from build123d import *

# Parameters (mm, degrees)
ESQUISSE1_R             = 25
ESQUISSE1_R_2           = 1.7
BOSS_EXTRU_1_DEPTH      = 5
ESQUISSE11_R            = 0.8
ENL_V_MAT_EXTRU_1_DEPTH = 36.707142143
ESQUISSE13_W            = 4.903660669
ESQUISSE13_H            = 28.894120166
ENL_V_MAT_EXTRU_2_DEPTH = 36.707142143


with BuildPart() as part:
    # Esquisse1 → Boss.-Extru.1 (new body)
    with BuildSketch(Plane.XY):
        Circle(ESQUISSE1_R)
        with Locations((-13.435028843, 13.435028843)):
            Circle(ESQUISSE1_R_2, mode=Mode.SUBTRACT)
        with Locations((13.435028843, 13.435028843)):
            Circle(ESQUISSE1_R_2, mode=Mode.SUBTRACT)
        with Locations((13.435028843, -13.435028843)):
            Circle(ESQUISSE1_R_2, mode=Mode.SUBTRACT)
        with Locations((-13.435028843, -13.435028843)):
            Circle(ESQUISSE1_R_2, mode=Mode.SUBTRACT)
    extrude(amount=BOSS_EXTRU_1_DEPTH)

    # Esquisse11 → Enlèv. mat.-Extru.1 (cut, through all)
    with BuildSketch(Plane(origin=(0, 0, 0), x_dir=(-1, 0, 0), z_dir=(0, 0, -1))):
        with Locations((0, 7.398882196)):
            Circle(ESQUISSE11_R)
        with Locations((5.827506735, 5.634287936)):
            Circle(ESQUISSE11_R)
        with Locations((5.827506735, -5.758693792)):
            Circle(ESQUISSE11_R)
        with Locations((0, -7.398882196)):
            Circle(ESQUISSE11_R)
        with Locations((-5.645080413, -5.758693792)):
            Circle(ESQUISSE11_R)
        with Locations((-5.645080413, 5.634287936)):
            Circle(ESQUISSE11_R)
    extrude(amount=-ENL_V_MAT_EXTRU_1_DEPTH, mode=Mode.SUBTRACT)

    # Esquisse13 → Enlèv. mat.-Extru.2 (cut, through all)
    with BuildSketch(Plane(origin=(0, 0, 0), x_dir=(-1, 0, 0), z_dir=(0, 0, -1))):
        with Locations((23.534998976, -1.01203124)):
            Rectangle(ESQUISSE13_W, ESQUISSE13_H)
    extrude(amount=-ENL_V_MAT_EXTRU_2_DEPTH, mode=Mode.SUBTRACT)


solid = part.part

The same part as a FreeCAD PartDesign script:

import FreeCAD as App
import Part
import Sketcher

V = App.Vector


def add_polygon(sketch, points):
    """Adds a closed chain of lines whose ends are joined by coincident constraints."""
    first, n = sketch.GeometryCount, len(points)
    for a, b in zip(points, points[1:] + points[:1]):
        sketch.addGeometry(Part.LineSegment(App.Vector(*a, 0), App.Vector(*b, 0)), False)
    for i in range(n):
        sketch.addConstraint(Sketcher.Constraint("Coincident", first + i, 2, first + (i + 1) % n, 1))

doc = App.newDocument("Part")
body = doc.addObject("PartDesign::Body", "Body")

# Sketch on XY plane
sketch1 = doc.addObject("Sketcher::SketchObject", "Sketch")
body.addObject(sketch1)
sketch1.AttachmentSupport = (doc.XY_Plane, [""])
sketch1.MapMode = "FlatFace"
sketch1.addGeometry(Part.Circle(V(0, 0, 0), V(0, 0, 1), 25), False)
sketch1.addGeometry(Part.Circle(V(-13.4, -13.4, 0), V(0, 0, 1), 1.7), False)
sketch1.addGeometry(Part.Circle(V(13.4, -13.4, 0), V(0, 0, 1), 1.7), False)
sketch1.addGeometry(Part.Circle(V(-13.4, 13.4, 0), V(0, 0, 1), 1.7), False)
sketch1.addGeometry(Part.Circle(V(13.4, 13.4, 0), V(0, 0, 1), 1.7), False)
sketch1.addConstraint(Sketcher.Constraint("Coincident", 0, 3, -1, 1))
sketch1.addConstraint(Sketcher.Constraint("Equal", 1, 2))
sketch1.addConstraint(Sketcher.Constraint("Equal", 2, 3))
sketch1.addConstraint(Sketcher.Constraint("Equal", 3, 4))
sketch1.addConstraint(Sketcher.Constraint("Symmetric", 2, 3, 3, 3, -1, 1))
sketch1.addConstraint(Sketcher.Constraint("Symmetric", 1, 3, 4, 3, -1, 1))
sketch1.addConstraint(Sketcher.Constraint("Symmetric", 1, 3, 2, 3, -2))
sketch1.addConstraint(Sketcher.Constraint("Diameter", 0, 50.0))
sketch1.addConstraint(Sketcher.Constraint("Diameter", 1, 3.4))
sketch1.addConstraint(Sketcher.Constraint("DistanceX", 1, 3, -1, 1, 13.435029))
sketch1.addConstraint(Sketcher.Constraint("DistanceY", 1, 3, -1, 1, 13.435029))
pad1 = doc.addObject("PartDesign::Pad", "Pad")
body.addObject(pad1)
pad1.Profile = sketch1
pad1.Length = 5

# Sketch on XY plane
sketch2 = doc.addObject("Sketcher::SketchObject", "Sketch001")
body.addObject(sketch2)
sketch2.AttachmentSupport = (doc.XY_Plane, [""])
sketch2.MapMode = "FlatFace"
sketch2.addGeometry(Part.Circle(V(0, 7.4, 0), V(0, 0, 1), 0.8), False)
sketch2.addGeometry(Part.Circle(V(-5.8, 5.6, 0), V(0, 0, 1), 0.8), False)
sketch2.addGeometry(Part.Circle(V(-5.8, -5.8, 0), V(0, 0, 1), 0.8), False)
sketch2.addGeometry(Part.Circle(V(0, -7.4, 0), V(0, 0, 1), 0.8), False)
sketch2.addGeometry(Part.Circle(V(5.6, -5.8, 0), V(0, 0, 1), 0.8), False)
sketch2.addGeometry(Part.Circle(V(5.6, 5.6, 0), V(0, 0, 1), 0.8), False)
sketch2.addConstraint(Sketcher.Constraint("Equal", 0, 1))
sketch2.addConstraint(Sketcher.Constraint("Equal", 1, 2))
sketch2.addConstraint(Sketcher.Constraint("Equal", 2, 3))
sketch2.addConstraint(Sketcher.Constraint("Equal", 3, 4))
sketch2.addConstraint(Sketcher.Constraint("Equal", 4, 5))
sketch2.addConstraint(Sketcher.Constraint("Symmetric", 0, 3, 3, 3, -1, 1))
sketch2.addConstraint(Sketcher.Constraint("PointOnObject", 0, 3, -2))
sketch2.addConstraint(Sketcher.Constraint("Horizontal", 2, 3, 4, 3))
sketch2.addConstraint(Sketcher.Constraint("Horizontal", 1, 3, 5, 3))
sketch2.addConstraint(Sketcher.Constraint("Vertical", 1, 3, 2, 3))
sketch2.addConstraint(Sketcher.Constraint("Vertical", 4, 3, 5, 3))
sketch2.addConstraint(Sketcher.Constraint("Diameter", 0, 1.6))
sketch2.addConstraint(Sketcher.Constraint("DistanceX", -1, 1, 4, 3, 5.64508))
sketch2.addConstraint(Sketcher.Constraint("DistanceY", 2, 3, 1, 3, 11.392982))
sketch2.addConstraint(Sketcher.Constraint("DistanceY", 3, 3, 2, 3, 1.640188))
sketch2.addConstraint(Sketcher.Constraint("DistanceY", -1, 1, 0, 3, 7.398882))
sketch2.addConstraint(Sketcher.Constraint("DistanceX", 1, 3, -1, 1, 5.827507))
pocket1 = doc.addObject("PartDesign::Pocket", "Pocket")
body.addObject(pocket1)
pocket1.Profile = sketch2
pocket1.Type = "ThroughAll"
pocket1.Reversed = True

# Sketch on XY plane
sketch3 = doc.addObject("Sketcher::SketchObject", "Sketch002")
body.addObject(sketch3)
sketch3.AttachmentSupport = (doc.XY_Plane, [""])
sketch3.MapMode = "FlatFace"
add_polygon(sketch3, [(-21.1, 13.4), (-21.1, -15.5), (-26, -15.5), (-26, 13.4)])  # lines 0-3
sketch3.addConstraint(Sketcher.Constraint("Vertical", 0))
sketch3.addConstraint(Sketcher.Constraint("Horizontal", 1))
sketch3.addConstraint(Sketcher.Constraint("Vertical", 2))
sketch3.addConstraint(Sketcher.Constraint("Horizontal", 3))
sketch3.addConstraint(Sketcher.Constraint("DistanceX", 1, 2, 1, 1, 4.903661))
sketch3.addConstraint(Sketcher.Constraint("DistanceY", 0, 2, 0, 1, 28.89412))
sketch3.addConstraint(Sketcher.Constraint("DistanceX", 0, 2, -1, 1, 21.083169))
sketch3.addConstraint(Sketcher.Constraint("DistanceY", 0, 2, -1, 1, 15.459091))
pocket2 = doc.addObject("PartDesign::Pocket", "Pocket001")
body.addObject(pocket2)
pocket2.Profile = sketch3
pocket2.Type = "ThroughAll"
pocket2.Reversed = True

doc.recompute()
